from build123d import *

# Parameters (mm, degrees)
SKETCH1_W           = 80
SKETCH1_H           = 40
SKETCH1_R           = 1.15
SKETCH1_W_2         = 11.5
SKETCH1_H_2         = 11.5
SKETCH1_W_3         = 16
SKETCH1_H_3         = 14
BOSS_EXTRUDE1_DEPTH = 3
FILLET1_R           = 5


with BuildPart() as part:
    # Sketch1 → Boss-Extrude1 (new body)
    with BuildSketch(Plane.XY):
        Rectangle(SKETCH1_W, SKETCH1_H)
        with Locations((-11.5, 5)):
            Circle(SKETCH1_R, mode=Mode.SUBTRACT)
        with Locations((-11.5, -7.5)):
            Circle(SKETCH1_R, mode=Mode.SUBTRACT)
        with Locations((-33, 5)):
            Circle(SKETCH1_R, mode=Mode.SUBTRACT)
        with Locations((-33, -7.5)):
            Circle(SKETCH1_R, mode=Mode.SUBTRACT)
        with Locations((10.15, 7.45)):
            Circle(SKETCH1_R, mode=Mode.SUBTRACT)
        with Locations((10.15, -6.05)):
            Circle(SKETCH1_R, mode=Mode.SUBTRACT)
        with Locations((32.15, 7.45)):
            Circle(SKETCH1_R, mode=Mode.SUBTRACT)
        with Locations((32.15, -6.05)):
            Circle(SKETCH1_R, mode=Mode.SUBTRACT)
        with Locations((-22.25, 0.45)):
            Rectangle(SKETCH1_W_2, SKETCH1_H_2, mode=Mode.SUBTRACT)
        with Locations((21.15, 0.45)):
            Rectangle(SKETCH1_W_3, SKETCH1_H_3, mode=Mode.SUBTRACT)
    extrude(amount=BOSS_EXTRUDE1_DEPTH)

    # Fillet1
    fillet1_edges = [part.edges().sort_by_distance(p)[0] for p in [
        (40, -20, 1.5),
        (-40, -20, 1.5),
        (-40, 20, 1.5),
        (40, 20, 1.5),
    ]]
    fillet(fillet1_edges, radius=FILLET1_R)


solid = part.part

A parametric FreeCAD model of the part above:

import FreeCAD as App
import Part
import Sketcher
from FreeCAD import Vector


def edges_at(feature, points):
    """Names of the edges that pass closest to the given points."""
    edges = feature.Shape.Edges
    near = lambda p: min(range(len(edges)), key=lambda i: edges[i].distToShape(Part.Vertex(*p))[0])
    return sorted({f"Edge{near(p) + 1}" for p in points})


def add_polygon(sketch, points):
    """Adds a closed chain of lines whose ends are joined by coincident constraints."""
    first, n = sketch.GeometryCount, len(points)
    for a, b in zip(points, points[1:] + points[:1]):
        sketch.addGeometry(Part.LineSegment(App.Vector(*a, 0), App.Vector(*b, 0)), False)
    for i in range(n):
        sketch.addConstraint(Sketcher.Constraint("Coincident", first + i, 2, first + (i + 1) % n, 1))

doc = App.newDocument("Part")
body = doc.addObject("PartDesign::Body", "Body")

# Sketch on XY plane
sketch1 = body.newObject("Sketcher::SketchObject", "Sketch")
sketch1.AttachmentSupport = (doc.getObject("XY_Plane"), [""])
sketch1.MapMode = "FlatFace"
add_polygon(sketch1, [(-40, 20), (-40, -20), (40, -20), (40, 20)])  # lines 0-3
sketch1.addGeometry(Part.Circle(Vector(-33, -7.5, 0), Vector(0, 0, 1), 1.1), False)  # 4
sketch1.addGeometry(Part.Circle(Vector(-11.5, -7.5, 0), Vector(0, 0, 1), 1.1), False)  # 5
sketch1.addGeometry(Part.Circle(Vector(10.2, -6, 0), Vector(0, 0, 1), 1.1), False)  # 6
sketch1.addGeometry(Part.Circle(Vector(32.1, -6, 0), Vector(0, 0, 1), 1.1), False)  # 7
add_polygon(sketch1, [(-16.5, -5.3), (-28, -5.3), (-28, 6.2), (-16.5, 6.2)])  # lines 8-11
sketch1.addGeometry(Part.Circle(Vector(-33, 5, 0), Vector(0, 0, 1), 1.1), False)  # 12
sketch1.addGeometry(Part.Circle(Vector(-11.5, 5, 0), Vector(0, 0, 1), 1.1), False)  # 13
add_polygon(sketch1, [(29.1, -6.5), (13.2, -6.5), (13.2, 7.5), (29.1, 7.5)])  # lines 14-17
sketch1.addGeometry(Part.Circle(Vector(10.2, 7.5, 0), Vector(0, 0, 1), 1.1), False)  # 18
sketch1.addGeometry(Part.Circle(Vector(32.1, 7.5, 0), Vector(0, 0, 1), 1.1), False)  # 19
sketch1.addConstraint([
    Sketcher.Constraint("Vertical", 0),
    Sketcher.Constraint("Horizontal", 1),
    Sketcher.Constraint("Vertical", 2),
    Sketcher.Constraint("Horizontal", 3),
    Sketcher.Constraint("Horizontal", 8),
    Sketcher.Constraint("Vertical", 9),
    Sketcher.Constraint("Horizontal", 10),
    Sketcher.Constraint("Vertical", 11),
    Sketcher.Constraint("Horizontal", 14),
    Sketcher.Constraint("Vertical", 15),
    Sketcher.Constraint("Horizontal", 16),
    Sketcher.Constraint("Vertical", 17),
    Sketcher.Constraint("Equal", 4, 5),
    Sketcher.Constraint("Equal", 5, 6),
    Sketcher.Constraint("Equal", 6, 7),
    Sketcher.Constraint("Equal", 7, 12),
    Sketcher.Constraint("Equal", 12, 13),
    Sketcher.Constraint("Equal", 13, 18),
    Sketcher.Constraint("Equal", 18, 19),
    Sketcher.Constraint("Symmetric", 0, 2, 2, 2, -1, 1),
    Sketcher.Constraint("Horizontal", 4, 3, 5, 3),
    Sketcher.Constraint("Horizontal", 6, 3, 7, 3),
    Sketcher.Constraint("Horizontal", 12, 3, 13, 3),
    Sketcher.Constraint("Horizontal", 18, 3, 19, 3),
    Sketcher.Constraint("Horizontal", 19, 3, 15, 2),
    Sketcher.Constraint("Vertical", 4, 3, 12, 3),
    Sketcher.Constraint("Vertical", 5, 3, 13, 3),
    Sketcher.Constraint("Vertical", 6, 3, 18, 3),
    Sketcher.Constraint("Vertical", 7, 3, 19, 3),
    Sketcher.Constraint("Equal", 10, 9),
    Sketcher.Constraint("Diameter", 4, 2.3),
    Sketcher.Constraint("DistanceX", 1, 1, 1, 2, 80.0),
    Sketcher.Constraint("DistanceX", 14, 2, 14, 1, 16.0),
    Sketcher.Constraint("DistanceY", 0, 2, 0, 1, 40.0),
    Sketcher.Constraint("DistanceY", 15, 1, 15, 2, 14.0),
    Sketcher.Constraint("DistanceX", 8, 2, 8, 1, 11.5),
    Sketcher.Constraint("DistanceX", 4, 3, -1, 1, 33.0),
    Sketcher.Constraint("DistanceY", -1, 1, 12, 3, 5.0),
    Sketcher.Constraint("DistanceX", 8, 2, -1, 1, 28.0),
    Sketcher.Constraint("DistanceX", 6, 3, 7, 3, 22.0),
    Sketcher.Constraint("DistanceX", 10, 2, 13, 3, 5.0),
    Sketcher.Constraint("DistanceX", 6, 3, 14, 2, 3.0),
    Sketcher.Constraint("DistanceY", 4, 3, -1, 1, 7.5),
    Sketcher.Constraint("DistanceY", 8, 2, -1, 1, 5.3),
    Sketcher.Constraint("DistanceY", 6, 3, 18, 3, 13.5),
    Sketcher.Constraint("DistanceX", -1, 1, 6, 3, 10.15),
    Sketcher.Constraint("DistanceY", 6, 3, -1, 1, 6.05),
])
pad1 = body.newObject("PartDesign::Pad", "Pad")
pad1.Profile = sketch1
pad1.Length = 3
doc.recompute()

fillet = body.newObject("PartDesign::Fillet", "Fillet")
fillet.Base = (pad1, edges_at(pad1, [
    (40, -20, 1.5),
    (-40, -20, 1.5),
    (-40, 20, 1.5),
    (40, 20, 1.5),
]))
fillet.Radius = 5

doc.recompute()
